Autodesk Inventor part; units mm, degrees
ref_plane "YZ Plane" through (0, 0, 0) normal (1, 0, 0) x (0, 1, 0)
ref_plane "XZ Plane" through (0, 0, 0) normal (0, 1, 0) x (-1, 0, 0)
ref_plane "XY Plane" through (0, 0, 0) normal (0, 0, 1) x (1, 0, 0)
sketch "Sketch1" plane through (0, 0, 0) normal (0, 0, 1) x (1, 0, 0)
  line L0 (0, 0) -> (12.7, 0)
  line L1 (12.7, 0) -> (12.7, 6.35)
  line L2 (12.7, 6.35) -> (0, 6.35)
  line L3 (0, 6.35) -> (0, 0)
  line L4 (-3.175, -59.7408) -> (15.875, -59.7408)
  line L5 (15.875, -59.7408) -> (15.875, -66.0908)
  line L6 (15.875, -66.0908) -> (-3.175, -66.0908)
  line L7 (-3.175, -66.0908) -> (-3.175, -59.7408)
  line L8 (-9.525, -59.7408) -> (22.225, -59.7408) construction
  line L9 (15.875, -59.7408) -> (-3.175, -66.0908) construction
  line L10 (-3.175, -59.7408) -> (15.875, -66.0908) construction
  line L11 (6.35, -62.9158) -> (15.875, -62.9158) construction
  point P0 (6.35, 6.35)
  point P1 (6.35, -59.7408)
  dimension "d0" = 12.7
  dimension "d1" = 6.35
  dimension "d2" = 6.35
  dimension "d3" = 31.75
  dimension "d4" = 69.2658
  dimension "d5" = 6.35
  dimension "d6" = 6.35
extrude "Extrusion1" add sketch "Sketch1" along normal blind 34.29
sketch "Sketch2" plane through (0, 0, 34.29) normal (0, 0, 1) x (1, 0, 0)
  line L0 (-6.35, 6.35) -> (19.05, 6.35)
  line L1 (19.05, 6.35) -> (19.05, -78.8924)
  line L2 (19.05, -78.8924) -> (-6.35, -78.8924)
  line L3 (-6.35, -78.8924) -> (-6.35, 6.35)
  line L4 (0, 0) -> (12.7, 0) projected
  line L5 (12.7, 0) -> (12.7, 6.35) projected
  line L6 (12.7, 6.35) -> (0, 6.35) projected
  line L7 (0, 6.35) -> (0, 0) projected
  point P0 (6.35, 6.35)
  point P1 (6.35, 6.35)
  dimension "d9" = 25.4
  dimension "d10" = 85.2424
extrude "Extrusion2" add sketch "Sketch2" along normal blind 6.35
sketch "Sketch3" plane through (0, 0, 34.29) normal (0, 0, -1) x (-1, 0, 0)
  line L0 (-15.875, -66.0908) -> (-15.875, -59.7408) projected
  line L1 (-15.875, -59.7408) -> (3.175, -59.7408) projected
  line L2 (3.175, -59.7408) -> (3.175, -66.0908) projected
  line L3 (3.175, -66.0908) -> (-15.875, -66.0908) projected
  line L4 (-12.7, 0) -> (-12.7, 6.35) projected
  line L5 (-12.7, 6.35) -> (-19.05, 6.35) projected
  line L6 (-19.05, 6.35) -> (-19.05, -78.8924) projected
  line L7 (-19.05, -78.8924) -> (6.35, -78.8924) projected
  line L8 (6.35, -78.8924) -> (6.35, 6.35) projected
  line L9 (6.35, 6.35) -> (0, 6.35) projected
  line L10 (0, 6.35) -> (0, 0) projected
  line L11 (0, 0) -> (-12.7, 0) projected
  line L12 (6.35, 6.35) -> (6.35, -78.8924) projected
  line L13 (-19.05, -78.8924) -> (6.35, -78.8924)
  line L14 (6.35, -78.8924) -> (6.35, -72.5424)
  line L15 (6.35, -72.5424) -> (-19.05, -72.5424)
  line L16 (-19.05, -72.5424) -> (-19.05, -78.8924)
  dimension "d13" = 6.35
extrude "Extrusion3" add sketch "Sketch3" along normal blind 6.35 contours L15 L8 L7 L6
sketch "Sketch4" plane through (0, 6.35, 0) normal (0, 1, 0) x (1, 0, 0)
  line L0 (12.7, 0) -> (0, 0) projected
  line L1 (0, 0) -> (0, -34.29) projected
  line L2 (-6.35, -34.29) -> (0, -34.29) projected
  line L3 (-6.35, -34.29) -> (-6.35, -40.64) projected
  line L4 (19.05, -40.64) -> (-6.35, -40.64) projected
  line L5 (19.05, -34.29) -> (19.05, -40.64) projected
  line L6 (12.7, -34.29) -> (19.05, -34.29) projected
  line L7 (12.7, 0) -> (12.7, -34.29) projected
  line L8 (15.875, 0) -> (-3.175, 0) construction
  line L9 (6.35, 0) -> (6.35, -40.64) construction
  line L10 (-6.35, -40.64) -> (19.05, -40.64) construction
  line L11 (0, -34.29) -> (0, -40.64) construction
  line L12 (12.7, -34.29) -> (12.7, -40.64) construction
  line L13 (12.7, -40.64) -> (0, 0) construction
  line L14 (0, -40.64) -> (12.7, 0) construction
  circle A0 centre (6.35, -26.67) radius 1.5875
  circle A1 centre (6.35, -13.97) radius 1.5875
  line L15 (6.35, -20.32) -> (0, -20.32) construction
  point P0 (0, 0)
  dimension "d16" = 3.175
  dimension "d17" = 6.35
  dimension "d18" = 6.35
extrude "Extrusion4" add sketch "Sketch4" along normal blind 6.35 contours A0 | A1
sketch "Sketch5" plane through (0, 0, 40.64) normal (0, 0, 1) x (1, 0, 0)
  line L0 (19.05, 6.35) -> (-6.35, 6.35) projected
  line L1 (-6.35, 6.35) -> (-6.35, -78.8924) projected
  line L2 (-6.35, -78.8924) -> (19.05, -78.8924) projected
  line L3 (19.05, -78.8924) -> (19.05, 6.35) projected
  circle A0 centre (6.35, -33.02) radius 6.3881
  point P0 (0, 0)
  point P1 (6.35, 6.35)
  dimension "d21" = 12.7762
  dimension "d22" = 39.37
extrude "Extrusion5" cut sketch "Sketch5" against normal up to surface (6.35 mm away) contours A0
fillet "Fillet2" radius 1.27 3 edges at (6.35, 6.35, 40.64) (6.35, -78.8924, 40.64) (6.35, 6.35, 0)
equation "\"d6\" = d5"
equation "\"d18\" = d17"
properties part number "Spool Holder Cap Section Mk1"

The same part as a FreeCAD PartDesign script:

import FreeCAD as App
import Part
import Sketcher
from FreeCAD import Vector
Q = App.Units.Quantity


def edges_at(feature, points):
    """Names of the edges that pass closest to the given points."""
    edges = feature.Shape.Edges
    near = lambda p: min(range(len(edges)), key=lambda i: edges[i].distToShape(Part.Vertex(*p))[0])
    return sorted({f"Edge{near(p) + 1}" for p in points})

doc = App.newDocument("Part")
params = doc.addObject("Spreadsheet::Sheet", "Params")
for row, (alias, value) in enumerate([
    ("sketch1_width", "0.5 in"),
    ("sketch1_height", "0.25 in"),
    ("sketch1_width2", "0.75 in"),
    ("pad1_length", "1.35 in"),
    ("sketch2_width", "1 in"),
    ("sketch2_height", "3.356 in"),
    ("pad2_length", "0.25 in"),
    ("sketch3_height", "0.25 in"),
    ("sketch3_width", "1 in"),
    ("pad3_length", "0.25 in"),
    ("sketch4_diameter", "0.125 in"),
    ("pad4_length", "0.25 in"),
    ("sketch5_diameter", "0.503 in"),
    ("pocket1_length", "0.25 in"),
    ("fillet_radius", "0.05 in"),
], start=1):
    params.set(f"A{row}", alias)
    params.set(f"B{row}", "=" + value)
    params.setAlias(f"B{row}", alias)

body = doc.addObject("PartDesign::Body", "Body")
body.AllowCompound = True

# Sketch on XY plane
sketch1 = doc.addObject("Sketcher::SketchObject", "Sketch")
body.addObject(sketch1)
sketch1.AttachmentSupport = (doc.XY_Plane, [""])
sketch1.MapMode = "FlatFace"
sketch1.addGeometry(Part.LineSegment(Vector(0, 6, 0), Vector(0, 0, 0)), False)
sketch1.addGeometry(Part.LineSegment(Vector(0, 0, 0), Vector(13, 0, 0)), False)
sketch1.addGeometry(Part.LineSegment(Vector(13, 0, 0), Vector(13, 6, 0)), False)
sketch1.addGeometry(Part.LineSegment(Vector(13, 6, 0), Vector(0, 6, 0)), False)
sketch1.addGeometry(Part.LineSegment(Vector(16, -60, 0), Vector(-3, -60, 0)), False)
sketch1.addGeometry(Part.LineSegment(Vector(-3, -60, 0), Vector(-3, -66, 0)), False)
sketch1.addGeometry(Part.LineSegment(Vector(-3, -66, 0), Vector(16, -66, 0)), False)
sketch1.addGeometry(Part.LineSegment(Vector(16, -66, 0), Vector(16, -60, 0)), False)
sketch1.addConstraint(Sketcher.Constraint("Coincident", 0, 2, 1, 1))
sketch1.addConstraint(Sketcher.Constraint("Coincident", 1, 2, 2, 1))
sketch1.addConstraint(Sketcher.Constraint("Coincident", 2, 2, 3, 1))
sketch1.addConstraint(Sketcher.Constraint("Coincident", 3, 2, 0, 1))
sketch1.addConstraint(Sketcher.Constraint("Coincident", 4, 2, 5, 1))
sketch1.addConstraint(Sketcher.Constraint("Coincident", 5, 2, 6, 1))
sketch1.addConstraint(Sketcher.Constraint("Coincident", 6, 2, 7, 1))
sketch1.addConstraint(Sketcher.Constraint("Coincident", 7, 2, 4, 1))
sketch1.addConstraint(Sketcher.Constraint("Vertical", 0))
sketch1.addConstraint(Sketcher.Constraint("Horizontal", 1))
sketch1.addConstraint(Sketcher.Constraint("Vertical", 2))
sketch1.addConstraint(Sketcher.Constraint("Horizontal", 3))
sketch1.addConstraint(Sketcher.Constraint("Horizontal", 4))
sketch1.addConstraint(Sketcher.Constraint("Vertical", 5))
sketch1.addConstraint(Sketcher.Constraint("Horizontal", 6))
sketch1.addConstraint(Sketcher.Constraint("Vertical", 7))
sketch1.addConstraint(Sketcher.Constraint("Coincident", 0, 2, -1, 1))
sketch1.addConstraint(Sketcher.Constraint("Equal", 2, 5))
sketch1.addConstraint(Sketcher.Constraint("DistanceX", 1, 1, 1, 2, Q("0.5 in")))
sketch1.addConstraint(Sketcher.Constraint("DistanceY", 0, 2, 0, 1, Q("0.25 in")))
sketch1.addConstraint(Sketcher.Constraint("DistanceX", 4, 2, 4, 1, Q("0.75 in")))
sketch1.addConstraint(Sketcher.Constraint("DistanceX", 4, 2, -1, 1, Q("0.125 in")))
sketch1.addConstraint(Sketcher.Constraint("DistanceY", 4, 2, -1, 1, Q("2.352 in")))
sketch1.setExpression("Constraints[18]", "Params.sketch1_width")
sketch1.setExpression("Constraints[19]", "Params.sketch1_height")
sketch1.setExpression("Constraints[20]", "Params.sketch1_width2")
pad1 = doc.addObject("PartDesign::Pad", "Pad")
body.addObject(pad1)
pad1.Profile = sketch1
pad1.setExpression("Length", "Params.pad1_length")

# Sketch on XY plane
sketch2 = doc.addObject("Sketcher::SketchObject", "Sketch001")
body.addObject(sketch2)
sketch2.AttachmentSupport = (doc.XY_Plane, [""])
sketch2.MapMode = "FlatFace"
sketch2.AttachmentOffset = App.Placement(Vector(0, 0, 1.35 * 25.4), App.Rotation())
sketch2.addGeometry(Part.LineSegment(Vector(-6, 6, 0), Vector(-6, -79, 0)), False)
sketch2.addGeometry(Part.LineSegment(Vector(-6, -79, 0), Vector(19, -79, 0)), False)
sketch2.addGeometry(Part.LineSegment(Vector(19, -79, 0), Vector(19, 6, 0)), False)
sketch2.addGeometry(Part.LineSegment(Vector(19, 6, 0), Vector(-6, 6, 0)), False)
sketch2.addConstraint(Sketcher.Constraint("Coincident", 0, 2, 1, 1))
sketch2.addConstraint(Sketcher.Constraint("Coincident", 1, 2, 2, 1))
sketch2.addConstraint(Sketcher.Constraint("Coincident", 2, 2, 3, 1))
sketch2.addConstraint(Sketcher.Constraint("Coincident", 3, 2, 0, 1))
sketch2.addConstraint(Sketcher.Constraint("Vertical", 0))
sketch2.addConstraint(Sketcher.Constraint("Horizontal", 1))
sketch2.addConstraint(Sketcher.Constraint("Vertical", 2))
sketch2.addConstraint(Sketcher.Constraint("Horizontal", 3))
sketch2.addConstraint(Sketcher.Constraint("DistanceX", 1, 1, 1, 2, Q("1 in")))
sketch2.addConstraint(Sketcher.Constraint("DistanceY", 0, 2, 0, 1, Q("3.356 in")))
sketch2.addConstraint(Sketcher.Constraint("DistanceX", 0, 2, -1, 1, Q("0.25 in")))
sketch2.addConstraint(Sketcher.Constraint("DistanceY", -1, 1, 2, 2, Q("0.25 in")))
sketch2.setExpression("Constraints[8]", "Params.sketch2_width")
sketch2.setExpression("Constraints[9]", "Params.sketch2_height")
pad2 = doc.addObject("PartDesign::Pad", "Pad001")
body.addObject(pad2)
pad2.Profile = sketch2
pad2.setExpression("Length", "Params.pad2_length")

# Sketch on XY plane
sketch3 = doc.addObject("Sketcher::SketchObject", "Sketch002")
body.addObject(sketch3)
sketch3.AttachmentSupport = (doc.XY_Plane, [""])
sketch3.MapMode = "FlatFace"
sketch3.AttachmentOffset = App.Placement(Vector(0, 0, 1.35 * 25.4), App.Rotation())
sketch3.addGeometry(Part.LineSegment(Vector(-6, -73, 0), Vector(19, -73, 0)), False)
sketch3.addGeometry(Part.LineSegment(Vector(19, -73, 0), Vector(19, -79, 0)), False)
sketch3.addGeometry(Part.LineSegment(Vector(19, -79, 0), Vector(-6, -79, 0)), False)
sketch3.addGeometry(Part.LineSegment(Vector(-6, -79, 0), Vector(-6, -73, 0)), False)
sketch3.addConstraint(Sketcher.Constraint("Coincident", 0, 2, 1, 1))
sketch3.addConstraint(Sketcher.Constraint("Coincident", 1, 2, 2, 1))
sketch3.addConstraint(Sketcher.Constraint("Coincident", 2, 2, 3, 1))
sketch3.addConstraint(Sketcher.Constraint("Coincident", 3, 2, 0, 1))
sketch3.addConstraint(Sketcher.Constraint("Horizontal", 0))
sketch3.addConstraint(Sketcher.Constraint("Vertical", 1))
sketch3.addConstraint(Sketcher.Constraint("Horizontal", 2))
sketch3.addConstraint(Sketcher.Constraint("Vertical", 3))
sketch3.addConstraint(Sketcher.Constraint("DistanceY", 1, 2, 1, 1, Q("0.25 in")))
sketch3.addConstraint(Sketcher.Constraint("DistanceX", 0, 1, 0, 2, Q("1 in")))
sketch3.addConstraint(Sketcher.Constraint("DistanceX", 2, 2, -1, 1, Q("0.25 in")))
sketch3.addConstraint(Sketcher.Constraint("DistanceY", 0, 2, -1, 1, Q("2.856 in")))
sketch3.setExpression("Constraints[8]", "Params.sketch3_height")
sketch3.setExpression("Constraints[9]", "Params.sketch3_width")
pad3 = doc.addObject("PartDesign::Pad", "Pad002")
body.addObject(pad3)
pad3.Profile = sketch3
pad3.setExpression("Length", "Params.pad3_length")
pad3.Reversed = True

# Sketch on XZ plane
sketch4 = doc.addObject("Sketcher::SketchObject", "Sketch003")
body.addObject(sketch4)
sketch4.AttachmentSupport = (doc.XZ_Plane, [""])
sketch4.MapMode = "FlatFace"
sketch4.AttachmentOffset = App.Placement(Vector(0, 0, -0.25 * 25.4), App.Rotation())
sketch4.addGeometry(Part.Circle(Vector(6.3, 26.7, 0), Vector(0, 0, 1), 1.6), False)
sketch4.addGeometry(Part.Circle(Vector(6.3, 14, 0), Vector(0, 0, 1), 1.6), False)
sketch4.addConstraint(Sketcher.Constraint("Equal", 0, 1))
sketch4.addConstraint(Sketcher.Constraint("Vertical", 0, 3, 1, 3))
sketch4.addConstraint(Sketcher.Constraint("Diameter", 0, Q("0.125 in")))
sketch4.addConstraint(Sketcher.Constraint("DistanceX", -1, 1, 0, 3, Q("0.25 in")))
sketch4.addConstraint(Sketcher.Constraint("DistanceY", 1, 3, 0, 3, Q("0.5 in")))
sketch4.addConstraint(Sketcher.Constraint("DistanceY", -1, 1, 0, 3, Q("1.05 in")))
sketch4.setExpression("Constraints[2]", "Params.sketch4_diameter")
pad4 = doc.addObject("PartDesign::Pad", "Pad003")
body.addObject(pad4)
pad4.Profile = sketch4
pad4.setExpression("Length", "Params.pad4_length")
pad4.Reversed = True

# Sketch on XY plane
sketch5 = doc.addObject("Sketcher::SketchObject", "Sketch004")
body.addObject(sketch5)
sketch5.AttachmentSupport = (doc.XY_Plane, [""])
sketch5.MapMode = "FlatFace"
sketch5.AttachmentOffset = App.Placement(Vector(0, 0, 1.6 * 25.4), App.Rotation())
sketch5.addGeometry(Part.Circle(Vector(6, -33, 0), Vector(0, 0, 1), 6), False)
sketch5.addConstraint(Sketcher.Constraint("Diameter", 0, Q("0.503 in")))
sketch5.addConstraint(Sketcher.Constraint("DistanceY", 0, 3, -1, 1, Q("1.3 in")))
sketch5.addConstraint(Sketcher.Constraint("DistanceX", -1, 1, 0, 3, Q("0.25 in")))
sketch5.setExpression("Constraints[0]", "Params.sketch5_diameter")
pocket1 = doc.addObject("PartDesign::Pocket", "Pocket")
body.addObject(pocket1)
pocket1.Profile = sketch5
pocket1.setExpression("Length", "Params.pocket1_length")
doc.recompute()

fillet = doc.addObject("PartDesign::Fillet", "Fillet")
body.addObject(fillet)
fillet.Base = (pocket1, edges_at(pocket1, [(6.35, 6.35, 40.64), (6.35, -78.892, 40.64), (6.35, 6.35, 0)]))
fillet.setExpression("Radius", "Params.fillet_radius")

doc.recompute()
